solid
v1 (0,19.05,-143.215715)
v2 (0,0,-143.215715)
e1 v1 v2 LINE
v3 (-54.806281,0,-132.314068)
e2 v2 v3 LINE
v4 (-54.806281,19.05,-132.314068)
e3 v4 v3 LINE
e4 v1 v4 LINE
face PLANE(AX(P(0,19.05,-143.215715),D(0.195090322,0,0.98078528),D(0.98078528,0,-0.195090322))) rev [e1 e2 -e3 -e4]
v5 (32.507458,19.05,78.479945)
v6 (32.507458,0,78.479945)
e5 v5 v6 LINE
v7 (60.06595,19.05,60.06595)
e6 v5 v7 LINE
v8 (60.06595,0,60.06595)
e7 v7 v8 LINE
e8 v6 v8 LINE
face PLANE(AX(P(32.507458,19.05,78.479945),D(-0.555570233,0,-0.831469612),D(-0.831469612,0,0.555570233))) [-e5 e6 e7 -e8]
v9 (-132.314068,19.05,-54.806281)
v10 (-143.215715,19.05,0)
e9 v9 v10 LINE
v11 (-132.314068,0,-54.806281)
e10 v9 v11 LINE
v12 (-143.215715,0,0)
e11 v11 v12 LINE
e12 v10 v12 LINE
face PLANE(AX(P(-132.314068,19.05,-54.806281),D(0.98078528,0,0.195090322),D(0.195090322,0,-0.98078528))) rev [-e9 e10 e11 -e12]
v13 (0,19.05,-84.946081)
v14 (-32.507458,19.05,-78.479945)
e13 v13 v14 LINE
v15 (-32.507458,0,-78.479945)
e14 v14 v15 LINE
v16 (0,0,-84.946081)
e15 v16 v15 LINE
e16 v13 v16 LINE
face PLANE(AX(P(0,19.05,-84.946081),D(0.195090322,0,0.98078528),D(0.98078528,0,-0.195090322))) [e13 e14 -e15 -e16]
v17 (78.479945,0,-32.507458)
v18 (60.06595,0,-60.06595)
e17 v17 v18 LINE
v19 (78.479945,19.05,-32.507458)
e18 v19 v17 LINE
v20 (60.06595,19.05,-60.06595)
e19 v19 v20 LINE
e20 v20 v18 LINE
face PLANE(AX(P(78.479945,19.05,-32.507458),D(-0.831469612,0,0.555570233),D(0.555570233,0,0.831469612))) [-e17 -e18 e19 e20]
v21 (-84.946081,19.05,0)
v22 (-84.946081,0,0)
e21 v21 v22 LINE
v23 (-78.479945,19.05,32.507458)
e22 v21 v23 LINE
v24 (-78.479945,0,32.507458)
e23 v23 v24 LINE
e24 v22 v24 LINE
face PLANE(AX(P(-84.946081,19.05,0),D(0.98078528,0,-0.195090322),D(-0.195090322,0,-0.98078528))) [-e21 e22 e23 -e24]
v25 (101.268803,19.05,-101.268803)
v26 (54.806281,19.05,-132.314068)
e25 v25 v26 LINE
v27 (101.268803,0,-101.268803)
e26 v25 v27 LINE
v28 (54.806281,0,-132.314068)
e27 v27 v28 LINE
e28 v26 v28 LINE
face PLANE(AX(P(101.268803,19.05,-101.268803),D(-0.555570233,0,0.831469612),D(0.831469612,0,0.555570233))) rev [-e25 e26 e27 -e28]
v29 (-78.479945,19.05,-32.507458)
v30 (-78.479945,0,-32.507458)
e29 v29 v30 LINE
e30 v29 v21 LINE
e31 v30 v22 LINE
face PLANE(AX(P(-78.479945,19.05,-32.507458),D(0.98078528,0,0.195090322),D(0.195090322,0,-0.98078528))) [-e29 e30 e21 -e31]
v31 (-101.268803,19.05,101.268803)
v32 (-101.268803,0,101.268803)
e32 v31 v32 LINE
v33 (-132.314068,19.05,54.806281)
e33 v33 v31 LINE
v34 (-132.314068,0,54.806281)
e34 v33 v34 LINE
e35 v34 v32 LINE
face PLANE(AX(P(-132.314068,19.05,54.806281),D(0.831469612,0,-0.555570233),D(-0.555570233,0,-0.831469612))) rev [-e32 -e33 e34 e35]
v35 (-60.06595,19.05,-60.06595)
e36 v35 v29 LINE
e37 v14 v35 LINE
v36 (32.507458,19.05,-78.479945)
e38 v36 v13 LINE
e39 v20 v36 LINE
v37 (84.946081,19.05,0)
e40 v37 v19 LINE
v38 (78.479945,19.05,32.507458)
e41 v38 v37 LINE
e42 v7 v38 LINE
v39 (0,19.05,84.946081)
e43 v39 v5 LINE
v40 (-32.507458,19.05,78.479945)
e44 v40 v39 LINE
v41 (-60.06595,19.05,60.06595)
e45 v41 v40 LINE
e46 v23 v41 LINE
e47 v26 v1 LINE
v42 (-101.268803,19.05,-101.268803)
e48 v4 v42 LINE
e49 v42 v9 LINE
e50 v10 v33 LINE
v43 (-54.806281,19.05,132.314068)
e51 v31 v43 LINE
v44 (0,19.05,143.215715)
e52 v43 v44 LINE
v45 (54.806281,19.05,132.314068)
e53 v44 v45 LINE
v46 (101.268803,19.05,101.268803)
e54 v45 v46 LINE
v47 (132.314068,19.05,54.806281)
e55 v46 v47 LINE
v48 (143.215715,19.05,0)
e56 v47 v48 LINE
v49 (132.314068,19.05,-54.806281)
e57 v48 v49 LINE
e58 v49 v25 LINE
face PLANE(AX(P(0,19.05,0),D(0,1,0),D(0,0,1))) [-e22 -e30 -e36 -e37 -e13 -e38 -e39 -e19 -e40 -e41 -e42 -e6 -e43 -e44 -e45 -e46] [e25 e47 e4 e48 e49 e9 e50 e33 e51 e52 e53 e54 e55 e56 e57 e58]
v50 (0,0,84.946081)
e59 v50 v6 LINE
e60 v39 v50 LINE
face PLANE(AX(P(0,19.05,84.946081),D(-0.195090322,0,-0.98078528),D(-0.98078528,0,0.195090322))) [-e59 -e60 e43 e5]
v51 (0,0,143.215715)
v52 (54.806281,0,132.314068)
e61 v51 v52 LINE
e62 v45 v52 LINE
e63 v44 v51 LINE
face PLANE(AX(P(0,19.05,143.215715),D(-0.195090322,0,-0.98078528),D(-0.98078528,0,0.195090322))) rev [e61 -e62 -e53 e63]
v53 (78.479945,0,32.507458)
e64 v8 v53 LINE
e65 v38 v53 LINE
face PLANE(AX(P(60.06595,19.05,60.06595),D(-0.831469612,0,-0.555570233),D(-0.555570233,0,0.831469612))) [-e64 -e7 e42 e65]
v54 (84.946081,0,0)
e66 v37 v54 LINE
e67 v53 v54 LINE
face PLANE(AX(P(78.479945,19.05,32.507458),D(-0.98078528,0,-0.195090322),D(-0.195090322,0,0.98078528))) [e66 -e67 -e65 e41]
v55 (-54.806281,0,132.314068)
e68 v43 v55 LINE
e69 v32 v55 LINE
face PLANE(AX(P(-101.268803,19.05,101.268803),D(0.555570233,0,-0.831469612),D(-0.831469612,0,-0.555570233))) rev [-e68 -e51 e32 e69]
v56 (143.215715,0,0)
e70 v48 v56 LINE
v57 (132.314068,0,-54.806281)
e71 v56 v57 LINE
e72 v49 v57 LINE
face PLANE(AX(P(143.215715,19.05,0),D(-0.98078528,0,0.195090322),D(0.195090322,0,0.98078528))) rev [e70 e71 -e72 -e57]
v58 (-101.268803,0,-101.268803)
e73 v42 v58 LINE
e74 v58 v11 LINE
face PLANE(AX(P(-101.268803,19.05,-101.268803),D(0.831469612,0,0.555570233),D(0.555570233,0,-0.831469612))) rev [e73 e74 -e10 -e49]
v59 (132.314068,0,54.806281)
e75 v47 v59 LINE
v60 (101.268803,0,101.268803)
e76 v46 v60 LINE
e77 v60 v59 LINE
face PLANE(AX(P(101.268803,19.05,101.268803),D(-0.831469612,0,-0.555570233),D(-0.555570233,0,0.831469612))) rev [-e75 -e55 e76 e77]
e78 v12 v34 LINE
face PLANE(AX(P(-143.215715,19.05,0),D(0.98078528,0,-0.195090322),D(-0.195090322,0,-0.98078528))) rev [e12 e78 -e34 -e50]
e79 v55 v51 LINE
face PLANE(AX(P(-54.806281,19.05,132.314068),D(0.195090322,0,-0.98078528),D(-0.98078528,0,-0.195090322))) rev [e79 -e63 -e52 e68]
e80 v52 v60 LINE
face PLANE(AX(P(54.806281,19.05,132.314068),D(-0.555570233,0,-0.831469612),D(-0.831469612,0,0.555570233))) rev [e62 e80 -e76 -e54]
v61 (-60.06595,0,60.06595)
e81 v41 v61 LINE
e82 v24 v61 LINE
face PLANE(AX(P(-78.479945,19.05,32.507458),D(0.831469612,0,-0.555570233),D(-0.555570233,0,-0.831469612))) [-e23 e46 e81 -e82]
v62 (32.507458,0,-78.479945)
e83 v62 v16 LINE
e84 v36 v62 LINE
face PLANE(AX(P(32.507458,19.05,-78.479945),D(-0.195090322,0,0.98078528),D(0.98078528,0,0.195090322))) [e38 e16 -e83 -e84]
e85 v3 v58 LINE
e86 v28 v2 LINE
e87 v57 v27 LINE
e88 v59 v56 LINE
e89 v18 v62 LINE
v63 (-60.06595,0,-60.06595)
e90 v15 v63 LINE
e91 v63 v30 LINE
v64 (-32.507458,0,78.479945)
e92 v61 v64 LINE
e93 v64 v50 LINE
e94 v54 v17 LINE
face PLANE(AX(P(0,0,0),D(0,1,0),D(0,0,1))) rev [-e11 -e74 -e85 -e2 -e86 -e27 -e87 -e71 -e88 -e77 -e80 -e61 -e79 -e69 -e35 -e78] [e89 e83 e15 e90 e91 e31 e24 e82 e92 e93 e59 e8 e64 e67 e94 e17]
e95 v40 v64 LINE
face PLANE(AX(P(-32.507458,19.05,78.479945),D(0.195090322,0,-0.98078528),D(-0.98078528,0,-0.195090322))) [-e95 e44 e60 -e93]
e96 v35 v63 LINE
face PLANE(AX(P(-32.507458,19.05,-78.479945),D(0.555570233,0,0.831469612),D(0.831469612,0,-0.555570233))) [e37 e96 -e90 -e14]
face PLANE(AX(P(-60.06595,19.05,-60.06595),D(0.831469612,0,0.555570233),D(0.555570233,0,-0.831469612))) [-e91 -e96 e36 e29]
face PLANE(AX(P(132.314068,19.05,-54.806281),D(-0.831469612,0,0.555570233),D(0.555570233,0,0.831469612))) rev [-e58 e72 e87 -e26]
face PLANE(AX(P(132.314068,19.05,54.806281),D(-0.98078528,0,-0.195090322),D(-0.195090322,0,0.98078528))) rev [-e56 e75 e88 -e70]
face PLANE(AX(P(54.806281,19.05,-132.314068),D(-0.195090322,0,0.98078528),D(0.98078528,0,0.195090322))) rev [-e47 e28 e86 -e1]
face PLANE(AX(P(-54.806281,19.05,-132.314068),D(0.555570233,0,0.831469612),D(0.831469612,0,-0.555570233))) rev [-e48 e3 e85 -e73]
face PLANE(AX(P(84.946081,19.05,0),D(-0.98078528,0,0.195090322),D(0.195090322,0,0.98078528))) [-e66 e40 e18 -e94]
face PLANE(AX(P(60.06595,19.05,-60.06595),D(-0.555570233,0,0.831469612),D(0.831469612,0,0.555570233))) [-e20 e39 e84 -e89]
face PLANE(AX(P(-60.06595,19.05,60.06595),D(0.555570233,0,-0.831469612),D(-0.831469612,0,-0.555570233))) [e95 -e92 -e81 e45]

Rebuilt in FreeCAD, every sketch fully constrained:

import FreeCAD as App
import Part
import Sketcher
from FreeCAD import Vector
Q = App.Units.Quantity

doc = App.newDocument("Part")
body = doc.addObject("PartDesign::Body", "Body")

sketch1 = body.newObject("Sketcher::SketchObject", "Sketch")
sketch1.AttachmentSupport = (doc.getObject("XZ_Plane"), [""])
sketch1.MapMode = "FlatFace"
sketch1.addGeometry([
    Part.LineSegment(Vector(143, 0, 0), Vector(132, -55, 0)),
    Part.LineSegment(Vector(132, -55, 0), Vector(101, -101, 0)),
    Part.LineSegment(Vector(101, -101, 0), Vector(55, -132, 0)),
    Part.LineSegment(Vector(55, -132, 0), Vector(0, -143, 0)),
    Part.LineSegment(Vector(0, -143, 0), Vector(-55, -132, 0)),
    Part.LineSegment(Vector(-55, -132, 0), Vector(-101, -101, 0)),
    Part.LineSegment(Vector(-101, -101, 0), Vector(-132, -55, 0)),
    Part.LineSegment(Vector(-132, -55, 0), Vector(-143, 0, 0)),
    Part.LineSegment(Vector(-143, 0, 0), Vector(-132, 55, 0)),
    Part.LineSegment(Vector(-132, 55, 0), Vector(-101, 101, 0)),
    Part.LineSegment(Vector(-101, 101, 0), Vector(-55, 132, 0)),
    Part.LineSegment(Vector(-55, 132, 0), Vector(0, 143, 0)),
    Part.LineSegment(Vector(0, 143, 0), Vector(55, 132, 0)),
    Part.LineSegment(Vector(55, 132, 0), Vector(101, 101, 0)),
    Part.LineSegment(Vector(101, 101, 0), Vector(132, 55, 0)),
    Part.LineSegment(Vector(132, 55, 0), Vector(143, 0, 0)),
    Part.LineSegment(Vector(78, -33, 0), Vector(85, 0, 0)),
    Part.LineSegment(Vector(85, 0, 0), Vector(78, 33, 0)),
    Part.LineSegment(Vector(78, 33, 0), Vector(60, 60, 0)),
    Part.LineSegment(Vector(60, 60, 0), Vector(33, 78, 0)),
    Part.LineSegment(Vector(33, 78, 0), Vector(0, 85, 0)),
    Part.LineSegment(Vector(0, 85, 0), Vector(-33, 78, 0)),
    Part.LineSegment(Vector(-33, 78, 0), Vector(-60, 60, 0)),
    Part.LineSegment(Vector(-60, 60, 0), Vector(-78, 33, 0)),
    Part.LineSegment(Vector(-78, 33, 0), Vector(-85, 0, 0)),
    Part.LineSegment(Vector(-85, 0, 0), Vector(-78, -33, 0)),
    Part.LineSegment(Vector(-78, -33, 0), Vector(-60, -60, 0)),
    Part.LineSegment(Vector(-60, -60, 0), Vector(-33, -78, 0)),
    Part.LineSegment(Vector(-33, -78, 0), Vector(0, -85, 0)),
    Part.LineSegment(Vector(0, -85, 0), Vector(33, -78, 0)),
    Part.LineSegment(Vector(33, -78, 0), Vector(60, -60, 0)),
    Part.LineSegment(Vector(60, -60, 0), Vector(78, -33, 0)),
], False)
sketch1.addConstraint([
    Sketcher.Constraint("Coincident", 0, 2, 1, 1),
    Sketcher.Constraint("Coincident", 1, 2, 2, 1),
    Sketcher.Constraint("Coincident", 2, 2, 3, 1),
    Sketcher.Constraint("Coincident", 3, 2, 4, 1),
    Sketcher.Constraint("Coincident", 4, 2, 5, 1),
    Sketcher.Constraint("Coincident", 5, 2, 6, 1),
    Sketcher.Constraint("Coincident", 6, 2, 7, 1),
    Sketcher.Constraint("Coincident", 7, 2, 8, 1),
    Sketcher.Constraint("Coincident", 8, 2, 9, 1),
    Sketcher.Constraint("Coincident", 9, 2, 10, 1),
    Sketcher.Constraint("Coincident", 10, 2, 11, 1),
    Sketcher.Constraint("Coincident", 11, 2, 12, 1),
    Sketcher.Constraint("Coincident", 12, 2, 13, 1),
    Sketcher.Constraint("Coincident", 13, 2, 14, 1),
    Sketcher.Constraint("Coincident", 14, 2, 15, 1),
    Sketcher.Constraint("Coincident", 15, 2, 0, 1),
    Sketcher.Constraint("Coincident", 16, 2, 17, 1),
    Sketcher.Constraint("Coincident", 17, 2, 18, 1),
    Sketcher.Constraint("Coincident", 18, 2, 19, 1),
    Sketcher.Constraint("Coincident", 19, 2, 20, 1),
    Sketcher.Constraint("Coincident", 20, 2, 21, 1),
    Sketcher.Constraint("Coincident", 21, 2, 22, 1),
    Sketcher.Constraint("Coincident", 22, 2, 23, 1),
    Sketcher.Constraint("Coincident", 23, 2, 24, 1),
    Sketcher.Constraint("Coincident", 24, 2, 25, 1),
    Sketcher.Constraint("Coincident", 25, 2, 26, 1),
    Sketcher.Constraint("Coincident", 26, 2, 27, 1),
    Sketcher.Constraint("Coincident", 27, 2, 28, 1),
    Sketcher.Constraint("Coincident", 28, 2, 29, 1),
    Sketcher.Constraint("Coincident", 29, 2, 30, 1),
    Sketcher.Constraint("Coincident", 30, 2, 31, 1),
    Sketcher.Constraint("Coincident", 31, 2, 16, 1),
    Sketcher.Constraint("Symmetric", 0, 2, 8, 2, -1, 1),
    Sketcher.Constraint("Symmetric", 1, 2, 9, 2, -1, 1),
    Sketcher.Constraint("Symmetric", 2, 2, 10, 2, -1, 1),
    Sketcher.Constraint("Symmetric", 3, 2, 11, 2, -1, 1),
    Sketcher.Constraint("Symmetric", 4, 2, 12, 2, -1, 1),
    Sketcher.Constraint("Symmetric", 5, 2, 13, 2, -1, 1),
    Sketcher.Constraint("Symmetric", 6, 2, 14, 2, -1, 1),
    Sketcher.Constraint("Symmetric", 7, 2, 15, 2, -1, 1),
    Sketcher.Constraint("Symmetric", 16, 2, 24, 2, -1, 1),
    Sketcher.Constraint("Symmetric", 17, 2, 25, 2, -1, 1),
    Sketcher.Constraint("Symmetric", 18, 2, 26, 2, -1, 1),
    Sketcher.Constraint("Symmetric", 19, 2, 27, 2, -1, 1),
    Sketcher.Constraint("Symmetric", 20, 2, 28, 2, -1, 1),
    Sketcher.Constraint("Symmetric", 21, 2, 29, 2, -1, 1),
    Sketcher.Constraint("Symmetric", 22, 2, 30, 2, -1, 1),
    Sketcher.Constraint("Symmetric", 23, 2, 31, 2, -1, 1),
    Sketcher.Constraint("Symmetric", 2, 2, 4, 2, -2),
    Sketcher.Constraint("Symmetric", 1, 2, 5, 2, -2),
    Sketcher.Constraint("Symmetric", 0, 2, 6, 2, -2),
    Sketcher.Constraint("Symmetric", 19, 2, 21, 2, -2),
    Sketcher.Constraint("Symmetric", 18, 2, 22, 2, -2),
    Sketcher.Constraint("Symmetric", 17, 2, 23, 2, -2),
    Sketcher.Constraint("PointOnObject", 3, 2, -2),
    Sketcher.Constraint("PointOnObject", 7, 2, -1),
    Sketcher.Constraint("PointOnObject", 16, 2, -1),
    Sketcher.Constraint("PointOnObject", 20, 2, -2),
    Sketcher.Constraint("Perpendicular", 0, 4),
    Sketcher.Constraint("Perpendicular", 1, 5),
    Sketcher.Constraint("Perpendicular", 12, 16),
    Sketcher.Constraint("Parallel", 14, 18),
    Sketcher.Constraint("Parallel", 13, 19),
    Sketcher.Constraint("Perpendicular", 16, 20),
    Sketcher.Constraint("Equal", 0, 1),
    Sketcher.Constraint("Equal", 1, 2),
    Sketcher.Constraint("Equal", 2, 3),
    Sketcher.Constraint("Equal", 17, 18),
    Sketcher.Constraint("Equal", 18, 19),
    Sketcher.Constraint("Equal", 19, 20),
    Sketcher.Constraint("Distance", 0, Q("2.2 in")),
    Sketcher.Constraint("Angle", 0, Q("-101.25 deg")),
    Sketcher.Constraint("Angle", 1, Q("-123.75 deg")),
    Sketcher.Constraint("DistanceX", -1, 1, 16, 2, 84.946081),
])
pad1 = body.newObject("PartDesign::Pad", "Pad")
pad1.Profile = sketch1
pad1.Length = Q("0.75 in")
pad1.Reversed = True

doc.recompute()
